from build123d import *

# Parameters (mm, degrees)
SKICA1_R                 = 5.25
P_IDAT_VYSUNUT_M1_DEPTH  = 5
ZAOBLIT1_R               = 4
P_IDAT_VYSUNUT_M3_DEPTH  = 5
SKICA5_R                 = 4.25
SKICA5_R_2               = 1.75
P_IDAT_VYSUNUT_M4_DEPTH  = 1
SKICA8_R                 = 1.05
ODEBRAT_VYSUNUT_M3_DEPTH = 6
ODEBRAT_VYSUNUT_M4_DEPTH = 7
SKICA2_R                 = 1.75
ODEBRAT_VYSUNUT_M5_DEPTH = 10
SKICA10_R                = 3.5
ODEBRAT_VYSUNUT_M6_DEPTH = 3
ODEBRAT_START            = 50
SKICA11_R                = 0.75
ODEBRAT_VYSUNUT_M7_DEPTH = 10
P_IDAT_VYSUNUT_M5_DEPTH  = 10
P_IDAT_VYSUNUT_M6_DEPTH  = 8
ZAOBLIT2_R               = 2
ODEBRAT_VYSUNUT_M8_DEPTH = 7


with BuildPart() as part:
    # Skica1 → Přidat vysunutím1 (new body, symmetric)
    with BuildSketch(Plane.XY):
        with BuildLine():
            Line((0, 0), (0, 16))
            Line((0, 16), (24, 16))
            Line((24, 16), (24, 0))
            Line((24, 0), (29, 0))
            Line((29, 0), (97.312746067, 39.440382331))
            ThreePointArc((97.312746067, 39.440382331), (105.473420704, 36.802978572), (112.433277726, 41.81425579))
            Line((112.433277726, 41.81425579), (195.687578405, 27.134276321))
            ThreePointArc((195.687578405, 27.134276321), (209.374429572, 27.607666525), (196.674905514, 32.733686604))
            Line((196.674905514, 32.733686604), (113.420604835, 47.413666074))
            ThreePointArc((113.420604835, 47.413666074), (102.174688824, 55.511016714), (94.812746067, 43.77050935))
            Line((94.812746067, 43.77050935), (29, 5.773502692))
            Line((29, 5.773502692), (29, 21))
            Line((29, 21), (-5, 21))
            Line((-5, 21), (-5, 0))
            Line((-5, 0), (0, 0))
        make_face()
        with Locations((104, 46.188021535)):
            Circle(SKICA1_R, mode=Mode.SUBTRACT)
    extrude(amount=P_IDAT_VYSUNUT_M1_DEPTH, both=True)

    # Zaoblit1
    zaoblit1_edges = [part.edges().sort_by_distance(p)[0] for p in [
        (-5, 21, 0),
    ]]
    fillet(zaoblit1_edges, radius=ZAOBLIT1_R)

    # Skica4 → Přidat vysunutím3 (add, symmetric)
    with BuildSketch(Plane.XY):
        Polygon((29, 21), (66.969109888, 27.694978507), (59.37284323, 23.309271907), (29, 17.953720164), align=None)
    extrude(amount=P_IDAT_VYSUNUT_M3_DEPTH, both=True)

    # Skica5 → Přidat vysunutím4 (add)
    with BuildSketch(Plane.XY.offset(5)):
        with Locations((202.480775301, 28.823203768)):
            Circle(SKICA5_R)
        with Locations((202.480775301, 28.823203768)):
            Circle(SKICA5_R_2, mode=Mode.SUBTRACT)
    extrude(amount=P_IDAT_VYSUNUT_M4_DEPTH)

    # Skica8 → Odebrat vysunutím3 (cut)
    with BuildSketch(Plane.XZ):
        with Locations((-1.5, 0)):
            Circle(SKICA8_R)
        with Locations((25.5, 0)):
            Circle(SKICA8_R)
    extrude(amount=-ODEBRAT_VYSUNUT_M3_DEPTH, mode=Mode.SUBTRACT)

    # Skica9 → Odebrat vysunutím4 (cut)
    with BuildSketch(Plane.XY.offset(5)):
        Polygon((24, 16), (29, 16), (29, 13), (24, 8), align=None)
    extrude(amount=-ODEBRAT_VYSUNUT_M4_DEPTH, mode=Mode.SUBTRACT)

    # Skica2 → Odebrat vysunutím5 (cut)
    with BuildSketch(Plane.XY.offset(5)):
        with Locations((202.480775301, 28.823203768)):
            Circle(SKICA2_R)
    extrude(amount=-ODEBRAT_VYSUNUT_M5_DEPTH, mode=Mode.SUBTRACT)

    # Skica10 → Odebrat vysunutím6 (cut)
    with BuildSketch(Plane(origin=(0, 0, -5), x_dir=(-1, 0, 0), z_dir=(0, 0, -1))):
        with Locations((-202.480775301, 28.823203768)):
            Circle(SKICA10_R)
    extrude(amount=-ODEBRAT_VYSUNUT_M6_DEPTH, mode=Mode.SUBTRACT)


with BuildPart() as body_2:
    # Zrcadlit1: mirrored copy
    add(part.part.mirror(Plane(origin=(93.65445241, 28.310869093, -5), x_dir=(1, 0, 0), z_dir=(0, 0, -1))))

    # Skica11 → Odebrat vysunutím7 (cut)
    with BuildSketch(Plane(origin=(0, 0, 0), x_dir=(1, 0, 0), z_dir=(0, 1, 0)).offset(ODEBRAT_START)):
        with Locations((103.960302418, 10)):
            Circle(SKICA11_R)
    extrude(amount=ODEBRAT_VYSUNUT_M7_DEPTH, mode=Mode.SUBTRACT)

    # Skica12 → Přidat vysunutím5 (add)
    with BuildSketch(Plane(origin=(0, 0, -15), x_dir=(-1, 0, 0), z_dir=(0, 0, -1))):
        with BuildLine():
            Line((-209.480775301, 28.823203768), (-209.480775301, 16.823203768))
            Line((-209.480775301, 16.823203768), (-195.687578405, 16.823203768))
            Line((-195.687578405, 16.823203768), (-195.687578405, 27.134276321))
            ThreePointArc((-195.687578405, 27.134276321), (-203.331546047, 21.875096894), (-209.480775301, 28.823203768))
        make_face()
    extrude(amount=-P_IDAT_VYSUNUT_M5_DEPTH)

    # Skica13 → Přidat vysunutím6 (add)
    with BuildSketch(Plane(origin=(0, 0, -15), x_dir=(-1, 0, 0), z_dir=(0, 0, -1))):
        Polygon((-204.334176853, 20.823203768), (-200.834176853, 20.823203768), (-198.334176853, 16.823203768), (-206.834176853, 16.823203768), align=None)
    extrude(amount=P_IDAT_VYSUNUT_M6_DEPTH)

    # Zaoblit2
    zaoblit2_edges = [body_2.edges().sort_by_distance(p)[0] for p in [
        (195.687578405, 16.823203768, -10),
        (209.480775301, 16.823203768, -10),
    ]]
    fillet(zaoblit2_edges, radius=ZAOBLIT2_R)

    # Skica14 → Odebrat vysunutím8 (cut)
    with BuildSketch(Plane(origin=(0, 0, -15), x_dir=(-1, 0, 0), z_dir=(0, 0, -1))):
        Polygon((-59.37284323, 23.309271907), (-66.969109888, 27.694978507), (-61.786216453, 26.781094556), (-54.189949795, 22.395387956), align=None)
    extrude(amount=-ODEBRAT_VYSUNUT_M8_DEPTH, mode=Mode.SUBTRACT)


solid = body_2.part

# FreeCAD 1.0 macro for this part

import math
import FreeCAD as App
import Part
import Sketcher

V = App.Vector
Q = App.Units.Quantity


def edges_at(feature, points):
    """Names of the edges that pass closest to the given points."""
    edges = feature.Shape.Edges
    near = lambda p: min(range(len(edges)), key=lambda i: edges[i].distToShape(Part.Vertex(*p))[0])
    return sorted({f"Edge{near(p) + 1}" for p in points})

doc = App.newDocument("Part")
body = doc.addObject("PartDesign::Body", "Body")

sketch1 = body.newObject("Sketcher::SketchObject", "Sketch")
sketch1.AttachmentSupport = (doc.getObject("XY_Plane"), [""])
sketch1.MapMode = "FlatFace"
sketch1.addGeometry([
    Part.LineSegment(V(0, 0, 0), V(0, 16, 0)),
    Part.LineSegment(V(0, 16, 0), V(24, 16, 0)),
    Part.LineSegment(V(24, 16, 0), V(24, 0, 0)),
    Part.LineSegment(V(24, 0, 0), V(29, 0, 0)),
    Part.LineSegment(V(29, 0, 0), V(97, 39, 0)),
    Part.ArcOfCircle(Part.Circle(V(104, 46, 0), V(0, 0, 1), 10), math.radians(-135), math.radians(-27)),
    Part.LineSegment(V(112, 42, 0), V(196, 27, 0)),
    Part.ArcOfCircle(Part.Circle(V(202, 29, 0), V(0, 0, 1), 7), math.radians(-166), math.radians(146)),
    Part.LineSegment(V(197, 33, 0), V(113, 47, 0)),
    Part.ArcOfCircle(Part.Circle(V(104, 46, 0), V(0, 0, 1), 10), math.radians(7), math.radians(195)),
    Part.LineSegment(V(95, 44, 0), V(29, 6, 0)),
    Part.LineSegment(V(29, 6, 0), V(29, 21, 0)),
    Part.LineSegment(V(29, 21, 0), V(-5, 21, 0)),
    Part.LineSegment(V(-5, 21, 0), V(-5, 0, 0)),
    Part.LineSegment(V(-5, 0, 0), V(0, 0, 0)),
    Part.Circle(V(104, 46, 0), V(0, 0, 1), 5),
], False)
sketch1.addConstraint([
    Sketcher.Constraint("Coincident", 0, 2, 1, 1),
    Sketcher.Constraint("Coincident", 1, 2, 2, 1),
    Sketcher.Constraint("Coincident", 2, 2, 3, 1),
    Sketcher.Constraint("Coincident", 3, 2, 4, 1),
    Sketcher.Constraint("Coincident", 4, 2, 5, 1),
    Sketcher.Constraint("Coincident", 5, 2, 6, 1),
    Sketcher.Constraint("Coincident", 6, 2, 7, 1),
    Sketcher.Constraint("Coincident", 7, 2, 8, 1),
    Sketcher.Constraint("Coincident", 8, 2, 9, 1),
    Sketcher.Constraint("Coincident", 9, 2, 10, 1),
    Sketcher.Constraint("Coincident", 10, 2, 11, 1),
    Sketcher.Constraint("Coincident", 11, 2, 12, 1),
    Sketcher.Constraint("Coincident", 12, 2, 13, 1),
    Sketcher.Constraint("Coincident", 13, 2, 14, 1),
    Sketcher.Constraint("Coincident", 14, 2, 0, 1),
    Sketcher.Constraint("Vertical", 0),
    Sketcher.Constraint("Horizontal", 1),
    Sketcher.Constraint("Vertical", 2),
    Sketcher.Constraint("Horizontal", 3),
    Sketcher.Constraint("Vertical", 11),
    Sketcher.Constraint("Horizontal", 12),
    Sketcher.Constraint("Vertical", 13),
    Sketcher.Constraint("Horizontal", 14),
    Sketcher.Constraint("Coincident", 14, 2, -1, 1),
    Sketcher.Constraint("Coincident", 9, 3, 5, 3),
    Sketcher.Constraint("Coincident", 15, 3, 5, 3),
    Sketcher.Constraint("Equal", 5, 9),
    Sketcher.Constraint("PointOnObject", 2, 2, -1),
    Sketcher.Constraint("Parallel", 6, 8),
    Sketcher.Constraint("Parallel", 4, 10),
    Sketcher.Constraint("Vertical", 3, 2, 10, 2),
    Sketcher.Constraint("Equal", 3, 14),
    Sketcher.Constraint("Equal", 6, 8),
    Sketcher.Constraint("Radius", 7, 7.0),
    Sketcher.Constraint("Diameter", 15, 10.5),
    Sketcher.Constraint("Radius", 5, 9.5),
    Sketcher.Constraint("DistanceX", 1, 1, 1, 2, 24.0),
    Sketcher.Constraint("DistanceX", 3, 1, 3, 2, 5.0),
    Sketcher.Constraint("DistanceY", 0, 1, 0, 2, 16.0),
    Sketcher.Constraint("DistanceY", 13, 2, 13, 1, 21.0),
    Sketcher.Constraint("Angle", 4, Q("30 deg")),
    Sketcher.Constraint("Angle", 6, Q("-10 deg")),
    Sketcher.Constraint("DistanceX", -1, 1, 5, 3, 104.0),
    Sketcher.Constraint("DistanceX", 9, 2, 4, 2, 2.5),
    Sketcher.Constraint("DistanceX", 5, 2, 6, 2, 83.254301),
    Sketcher.Constraint("DistanceY", 11, 1, 11, 2, 15.226497),
    Sketcher.Constraint("DistanceX", -1, 1, 6, 2, 195.687578),
    Sketcher.Constraint("DistanceY", 6, 2, 7, 2, 5.59941),
])
pad1 = body.newObject("PartDesign::Pad", "Pad")
pad1.Profile = sketch1
pad1.Length = 10
pad1.Midplane = True
doc.recompute()

fillet = body.newObject("PartDesign::Fillet", "Fillet")
fillet.Base = (pad1, edges_at(pad1, [(-5, 21, 0)]))
fillet.Radius = 4

sketch2 = body.newObject("Sketcher::SketchObject", "Sketch001")
sketch2.AttachmentSupport = (doc.getObject("XY_Plane"), [""])
sketch2.MapMode = "FlatFace"
sketch2.addGeometry([
    Part.LineSegment(V(67, 27.7, 0), V(29, 21, 0)),
    Part.LineSegment(V(29, 21, 0), V(29, 18, 0)),
    Part.LineSegment(V(29, 18, 0), V(59.4, 23.3, 0)),
    Part.LineSegment(V(59.4, 23.3, 0), V(67, 27.7, 0)),
], False)
sketch2.addConstraint([
    Sketcher.Constraint("Coincident", 0, 2, 1, 1),
    Sketcher.Constraint("Coincident", 1, 2, 2, 1),
    Sketcher.Constraint("Coincident", 2, 2, 3, 1),
    Sketcher.Constraint("Coincident", 3, 2, 0, 1),
    Sketcher.Constraint("Vertical", 1),
    Sketcher.Constraint("Parallel", 0, 2),
    Sketcher.Constraint("Angle", 0, Q("-170 deg")),
    Sketcher.Constraint("Angle", 3, Q("30 deg")),
    Sketcher.Constraint("DistanceX", -1, 1, 0, 2, 29.0),
    Sketcher.Constraint("DistanceY", -1, 1, 0, 2, 21.0),
    Sketcher.Constraint("DistanceY", 1, 2, 1, 1, 3.04628),
    Sketcher.Constraint("DistanceY", -1, 1, 2, 2, 23.309272),
])
pad2 = body.newObject("PartDesign::Pad", "Pad001")
pad2.Profile = sketch2
pad2.Length = 10
pad2.Midplane = True

sketch3 = body.newObject("Sketcher::SketchObject", "Sketch002")
sketch3.AttachmentSupport = (doc.getObject("XY_Plane"), [""])
sketch3.MapMode = "FlatFace"
sketch3.AttachmentOffset = App.Placement(V(0, 0, 5), App.Rotation())
sketch3.addGeometry([
    Part.Circle(V(202.5, 28.8, 0), V(0, 0, 1), 4.2),
    Part.Circle(V(202.5, 28.8, 0), V(0, 0, 1), 1.8),
], False)
sketch3.addConstraint([
    Sketcher.Constraint("Coincident", 1, 3, 0, 3),
    Sketcher.Constraint("Diameter", 0, 8.5),
    Sketcher.Constraint("Diameter", 1, 3.5),
    Sketcher.Constraint("DistanceX", -1, 1, 0, 3, 202.480775),
    Sketcher.Constraint("DistanceY", -1, 1, 0, 3, 28.823204),
])
pad3 = body.newObject("PartDesign::Pad", "Pad002")
pad3.Profile = sketch3
pad3.Length = 1

sketch4 = body.newObject("Sketcher::SketchObject", "Sketch003")
sketch4.AttachmentSupport = (doc.getObject("XZ_Plane"), [""])
sketch4.MapMode = "FlatFace"
sketch4.addGeometry([
    Part.Circle(V(-1.5, 0, 0), V(0, 0, 1), 1.1),
    Part.Circle(V(25.5, 0, 0), V(0, 0, 1), 1.1),
], False)
sketch4.addConstraint([
    Sketcher.Constraint("Equal", 0, 1),
    Sketcher.Constraint("PointOnObject", 0, 3, -1),
    Sketcher.Constraint("PointOnObject", 1, 3, -1),
    Sketcher.Constraint("Diameter", 0, 2.1),
    Sketcher.Constraint("DistanceX", 0, 3, 1, 3, 27.0),
    Sketcher.Constraint("DistanceX", 0, 3, -1, 1, 1.5),
])
pocket1 = body.newObject("PartDesign::Pocket", "Pocket")
pocket1.Profile = sketch4
pocket1.Length = 6

sketch5 = body.newObject("Sketcher::SketchObject", "Sketch004")
sketch5.AttachmentSupport = (doc.getObject("XY_Plane"), [""])
sketch5.MapMode = "FlatFace"
sketch5.AttachmentOffset = App.Placement(V(0, 0, 5), App.Rotation())
sketch5.addGeometry([
    Part.LineSegment(V(29, 16, 0), V(24, 16, 0)),
    Part.LineSegment(V(24, 16, 0), V(24, 8, 0)),
    Part.LineSegment(V(24, 8, 0), V(29, 13, 0)),
    Part.LineSegment(V(29, 13, 0), V(29, 16, 0)),
], False)
sketch5.addConstraint([
    Sketcher.Constraint("Coincident", 0, 2, 1, 1),
    Sketcher.Constraint("Coincident", 1, 2, 2, 1),
    Sketcher.Constraint("Coincident", 2, 2, 3, 1),
    Sketcher.Constraint("Coincident", 3, 2, 0, 1),
    Sketcher.Constraint("Horizontal", 0),
    Sketcher.Constraint("Vertical", 1),
    Sketcher.Constraint("Vertical", 3),
    Sketcher.Constraint("DistanceX", 0, 2, 0, 1, 5.0),
    Sketcher.Constraint("DistanceY", 1, 2, 1, 1, 8.0),
    Sketcher.Constraint("DistanceY", 3, 1, 3, 2, 3.0),
    Sketcher.Constraint("DistanceX", -1, 1, 0, 2, 24.0),
    Sketcher.Constraint("DistanceY", -1, 1, 0, 2, 16.0),
])
pocket2 = body.newObject("PartDesign::Pocket", "Pocket001")
pocket2.Profile = sketch5
pocket2.Length = 7

sketch6 = body.newObject("Sketcher::SketchObject", "Sketch005")
sketch6.AttachmentSupport = (doc.getObject("XY_Plane"), [""])
sketch6.MapMode = "FlatFace"
sketch6.AttachmentOffset = App.Placement(V(0, 0, 5), App.Rotation())
sketch6.addGeometry(Part.Circle(V(202.5, 28.8, 0), V(0, 0, 1), 1.8), False)
sketch6.addConstraint([
    Sketcher.Constraint("Diameter", 0, 3.5),
    Sketcher.Constraint("DistanceX", -1, 1, 0, 3, 202.480775),
    Sketcher.Constraint("DistanceY", -1, 1, 0, 3, 28.823204),
])
pocket3 = body.newObject("PartDesign::Pocket", "Pocket002")
pocket3.Profile = sketch6
pocket3.Length = 10

sketch7 = body.newObject("Sketcher::SketchObject", "Sketch006")
sketch7.AttachmentSupport = (doc.getObject("XY_Plane"), [""])
sketch7.MapMode = "FlatFace"
sketch7.AttachmentOffset = App.Placement(V(0, 0, -5), App.Rotation())
sketch7.addGeometry(Part.Circle(V(202.5, 28.8, 0), V(0, 0, 1), 3.5), False)
sketch7.addConstraint([
    Sketcher.Constraint("Diameter", 0, 7.0),
    Sketcher.Constraint("DistanceX", -1, 1, 0, 3, 202.480775),
    Sketcher.Constraint("DistanceY", -1, 1, 0, 3, 28.823204),
])
pocket4 = body.newObject("PartDesign::Pocket", "Pocket003")
pocket4.Profile = sketch7
pocket4.Length = 3
pocket4.Reversed = True
body2 = doc.addObject("PartDesign::Body", "Body001")
doc.recompute()

mirroring = doc.addObject("Part::Mirroring", "Mirroring")
mirroring.Source = body
mirroring.Base = V(93.654452, 28.310869, -5)
mirroring.Normal = V(0, 0, -1)
body2.BaseFeature = mirroring
doc.recompute()

sketch8 = body2.newObject("Sketcher::SketchObject", "Sketch007")
sketch8.AttachmentSupport = (doc.getObject("XZ_Plane001"), [""])
sketch8.MapMode = "FlatFace"
sketch8.AttachmentOffset = App.Placement(V(0, 0, -50), App.Rotation())
sketch8.addGeometry(Part.Circle(V(104, -10, 0), V(0, 0, 1), 0.8), False)
sketch8.addConstraint([
    Sketcher.Constraint("Diameter", 0, 1.5),
    Sketcher.Constraint("DistanceY", 0, 3, -1, 1, 10.0),
    Sketcher.Constraint("DistanceX", -1, 1, 0, 3, 103.960302),
])
pocket5 = body2.newObject("PartDesign::Pocket", "Pocket004")
pocket5.Profile = sketch8
pocket5.Length = 10

sketch9 = body2.newObject("Sketcher::SketchObject", "Sketch008")
sketch9.AttachmentSupport = (doc.getObject("XY_Plane001"), [""])
sketch9.MapMode = "FlatFace"
sketch9.AttachmentOffset = App.Placement(V(0, 0, -15), App.Rotation())
sketch9.addGeometry([
    Part.LineSegment(V(209, 29, 0), V(209, 17, 0)),
    Part.LineSegment(V(209, 17, 0), V(196, 17, 0)),
    Part.LineSegment(V(196, 17, 0), V(196, 27, 0)),
    Part.ArcOfCircle(Part.Circle(V(202, 29, 0), V(0, 0, 1), 7), math.radians(-166), math.radians(0)),
], False)
sketch9.addConstraint([
    Sketcher.Constraint("Coincident", 0, 2, 1, 1),
    Sketcher.Constraint("Coincident", 1, 2, 2, 1),
    Sketcher.Constraint("Coincident", 2, 2, 3, 1),
    Sketcher.Constraint("Tangent", 3, 2, 0, 1),
    Sketcher.Constraint("Vertical", 0),
    Sketcher.Constraint("Horizontal", 1),
    Sketcher.Constraint("Vertical", 2),
    Sketcher.Constraint("Radius", 3, 7.0),
    Sketcher.Constraint("DistanceY", 0, 2, 0, 1, 12.0),
    Sketcher.Constraint("DistanceX", 1, 2, 1, 1, 13.793197),
    Sketcher.Constraint("DistanceX", -1, 1, 1, 2, 195.687578),
    Sketcher.Constraint("DistanceY", -1, 1, 3, 3, 28.823204),
])
pad4 = body2.newObject("PartDesign::Pad", "Pad003")
pad4.Profile = sketch9
pad4.Length = 10

sketch10 = body2.newObject("Sketcher::SketchObject", "Sketch009")
sketch10.AttachmentSupport = (doc.getObject("XY_Plane001"), [""])
sketch10.MapMode = "FlatFace"
sketch10.AttachmentOffset = App.Placement(V(0, 0, -15), App.Rotation())
sketch10.addGeometry([
    Part.LineSegment(V(200.8, 20.8, 0), V(204.3, 20.8, 0)),
    Part.LineSegment(V(204.3, 20.8, 0), V(206.8, 16.8, 0)),
    Part.LineSegment(V(206.8, 16.8, 0), V(198.3, 16.8, 0)),
    Part.LineSegment(V(198.3, 16.8, 0), V(200.8, 20.8, 0)),
], False)
sketch10.addConstraint([
    Sketcher.Constraint("Coincident", 0, 2, 1, 1),
    Sketcher.Constraint("Coincident", 1, 2, 2, 1),
    Sketcher.Constraint("Coincident", 2, 2, 3, 1),
    Sketcher.Constraint("Coincident", 3, 2, 0, 1),
    Sketcher.Constraint("Horizontal", 0),
    Sketcher.Constraint("Horizontal", 2),
    Sketcher.Constraint("Equal", 1, 3),
    Sketcher.Constraint("DistanceX", 0, 1, 0, 2, 3.5),
    Sketcher.Constraint("DistanceX", 2, 2, 2, 1, 8.5),
    Sketcher.Constraint("DistanceY", 1, 2, 0, 2, 4.0),
    Sketcher.Constraint("DistanceX", -1, 1, 0, 2, 204.334177),
    Sketcher.Constraint("DistanceY", -1, 1, 0, 2, 20.823204),
])
pad5 = body2.newObject("PartDesign::Pad", "Pad004")
pad5.Profile = sketch10
pad5.Length = 8
pad5.Reversed = True
doc.recompute()

fillet2 = body2.newObject("PartDesign::Fillet", "Fillet001")
fillet2.Base = (pad5, edges_at(pad5, [(195.688, 16.823, -10), (209.481, 16.823, -10)]))
fillet2.Radius = 2

sketch11 = body2.newObject("Sketcher::SketchObject", "Sketch010")
sketch11.AttachmentSupport = (doc.getObject("XY_Plane001"), [""])
sketch11.MapMode = "FlatFace"
sketch11.AttachmentOffset = App.Placement(V(0, 0, -15), App.Rotation())
sketch11.addGeometry([
    Part.LineSegment(V(67, 28, 0), V(59, 23, 0)),
    Part.LineSegment(V(59, 23, 0), V(54, 22, 0)),
    Part.LineSegment(V(54, 22, 0), V(62, 27, 0)),
    Part.LineSegment(V(62, 27, 0), V(67, 28, 0)),
], False)
sketch11.addConstraint([
    Sketcher.Constraint("Coincident", 0, 2, 1, 1),
    Sketcher.Constraint("Coincident", 1, 2, 2, 1),
    Sketcher.Constraint("Coincident", 2, 2, 3, 1),
    Sketcher.Constraint("Coincident", 3, 2, 0, 1),
    Sketcher.Constraint("Parallel", 0, 2),
    Sketcher.Constraint("Parallel", 1, 3),
    Sketcher.Constraint("Angle", 0, Q("-150 deg")),
    Sketcher.Constraint("Angle", 1, Q("-170 deg")),
    Sketcher.Constraint("DistanceY", -1, 1, 0, 2, 23.309272),
    Sketcher.Constraint("DistanceX", -1, 1, 1, 2, 54.18995),
    Sketcher.Constraint("DistanceX", -1, 1, 3, 2, 66.96911),
    Sketcher.Constraint("DistanceY", -1, 1, 3, 2, 27.694979),
])
pocket6 = body2.newObject("PartDesign::Pocket", "Pocket005")
pocket6.Profile = sketch11
pocket6.Length = 7
pocket6.Reversed = True
body.Visibility = False
mirroring.Visibility = False

doc.recompute()
